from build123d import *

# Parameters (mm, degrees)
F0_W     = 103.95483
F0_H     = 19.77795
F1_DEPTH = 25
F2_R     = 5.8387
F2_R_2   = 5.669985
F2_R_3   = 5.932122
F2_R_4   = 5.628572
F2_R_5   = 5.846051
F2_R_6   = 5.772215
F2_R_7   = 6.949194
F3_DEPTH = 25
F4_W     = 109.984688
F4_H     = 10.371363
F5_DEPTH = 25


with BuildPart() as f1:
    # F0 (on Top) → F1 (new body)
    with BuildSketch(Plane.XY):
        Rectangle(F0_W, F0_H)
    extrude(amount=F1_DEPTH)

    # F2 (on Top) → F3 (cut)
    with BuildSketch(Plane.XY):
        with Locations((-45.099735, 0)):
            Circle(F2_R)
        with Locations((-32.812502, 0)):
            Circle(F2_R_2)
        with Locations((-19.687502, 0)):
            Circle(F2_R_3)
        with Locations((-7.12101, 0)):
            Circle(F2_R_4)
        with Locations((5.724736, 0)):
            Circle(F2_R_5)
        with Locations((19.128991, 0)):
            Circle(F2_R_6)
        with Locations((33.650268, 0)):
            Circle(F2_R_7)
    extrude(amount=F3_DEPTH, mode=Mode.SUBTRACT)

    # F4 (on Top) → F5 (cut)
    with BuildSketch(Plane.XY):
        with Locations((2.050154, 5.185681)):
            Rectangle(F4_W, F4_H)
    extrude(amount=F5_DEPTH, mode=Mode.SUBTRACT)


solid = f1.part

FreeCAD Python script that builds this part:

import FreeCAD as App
import Part
import Sketcher
Q = App.Units.Quantity


def add_polygon(sketch, points):
    """Adds a closed chain of lines whose ends are joined by coincident constraints."""
    first, n = sketch.GeometryCount, len(points)
    for a, b in zip(points, points[1:] + points[:1]):
        sketch.addGeometry(Part.LineSegment(App.Vector(*a, 0), App.Vector(*b, 0)), False)
    for i in range(n):
        sketch.addConstraint(Sketcher.Constraint("Coincident", first + i, 2, first + (i + 1) % n, 1))

doc = App.newDocument("Part")
body = doc.addObject("PartDesign::Body", "Body")

sketch1 = body.newObject("Sketcher::SketchObject", "Sketch")
sketch1.AttachmentSupport = (doc.getObject("XY_Plane"), [""])
sketch1.MapMode = "FlatFace"
add_polygon(sketch1, [(-52, 10), (-52, -10), (52, -10), (52, 10)])
sketch1.addConstraint(Sketcher.Constraint("Vertical", 0))
sketch1.addConstraint(Sketcher.Constraint("Horizontal", 1))
sketch1.addConstraint(Sketcher.Constraint("Vertical", 2))
sketch1.addConstraint(Sketcher.Constraint("Horizontal", 3))
sketch1.addConstraint(Sketcher.Constraint("Symmetric", 0, 2, 2, 2, -1, 1))
sketch1.addConstraint(Sketcher.Constraint("DistanceX", 1, 1, 1, 2, Q("103.95483 mm")))
sketch1.addConstraint(Sketcher.Constraint("DistanceY", 0, 2, 0, 1, Q("19.77795 mm")))
pad1 = body.newObject("PartDesign::Pad", "Pad")
pad1.Profile = sketch1
pad1.Length = 25

sketch2 = body.newObject("Sketcher::SketchObject", "Sketch001")
sketch2.AttachmentSupport = (doc.getObject("XY_Plane"), [""])
sketch2.MapMode = "FlatFace"
sketch2.addGeometry(Part.Circle(App.Vector(-45, 0, 0), App.Vector(0, 0, 1), 6), False)
sketch2.addGeometry(Part.Circle(App.Vector(-33, 0, 0), App.Vector(0, 0, 1), 6), False)
sketch2.addGeometry(Part.Circle(App.Vector(-20, 0, 0), App.Vector(0, 0, 1), 6), False)
sketch2.addGeometry(Part.Circle(App.Vector(-7, 0, 0), App.Vector(0, 0, 1), 6), False)
sketch2.addGeometry(Part.Circle(App.Vector(6, 0, 0), App.Vector(0, 0, 1), 6), False)
sketch2.addGeometry(Part.Circle(App.Vector(19, 0, 0), App.Vector(0, 0, 1), 6), False)
sketch2.addGeometry(Part.Circle(App.Vector(34, 0, 0), App.Vector(0, 0, 1), 7), False)
sketch2.addConstraint(Sketcher.Constraint("PointOnObject", 0, 3, -1))
sketch2.addConstraint(Sketcher.Constraint("PointOnObject", 1, 3, -1))
sketch2.addConstraint(Sketcher.Constraint("PointOnObject", 2, 3, -1))
sketch2.addConstraint(Sketcher.Constraint("PointOnObject", 3, 3, -1))
sketch2.addConstraint(Sketcher.Constraint("PointOnObject", 4, 3, -1))
sketch2.addConstraint(Sketcher.Constraint("PointOnObject", 5, 3, -1))
sketch2.addConstraint(Sketcher.Constraint("PointOnObject", 6, 3, -1))
sketch2.addConstraint(Sketcher.Constraint("Diameter", 0, Q("11.6774 mm")))
sketch2.addConstraint(Sketcher.Constraint("Diameter", 1, Q("11.33997 mm")))
sketch2.addConstraint(Sketcher.Constraint("Diameter", 5, Q("11.54443 mm")))
sketch2.addConstraint(Sketcher.Constraint("Diameter", 6, Q("13.898388 mm")))
sketch2.addConstraint(Sketcher.Constraint("DistanceX", 3, 3, 5, 3, Q("26.250001 mm")))
sketch2.addConstraint(Sketcher.Constraint("Diameter", 2, Q("11.864244 mm")))
sketch2.addConstraint(Sketcher.Constraint("Diameter", 3, Q("11.257144 mm")))
sketch2.addConstraint(Sketcher.Constraint("Diameter", 4, Q("11.692102 mm")))
sketch2.addConstraint(Sketcher.Constraint("DistanceX", 1, 3, 2, 3, Q("13.125 mm")))
sketch2.addConstraint(Sketcher.Constraint("DistanceX", 2, 3, -1, 1, Q("19.687502 mm")))
sketch2.addConstraint(Sketcher.Constraint("DistanceX", 3, 3, -1, 1, Q("7.12101 mm")))
sketch2.addConstraint(Sketcher.Constraint("DistanceX", 1, 3, 4, 3, Q("38.537238 mm")))
sketch2.addConstraint(Sketcher.Constraint("DistanceX", 0, 3, 4, 3, Q("50.824471 mm")))
sketch2.addConstraint(Sketcher.Constraint("DistanceX", 4, 3, 6, 3, Q("27.925532 mm")))
pocket1 = body.newObject("PartDesign::Pocket", "Pocket")
pocket1.Profile = sketch2
pocket1.Length = 25
pocket1.Reversed = True

sketch3 = body.newObject("Sketcher::SketchObject", "Sketch002")
sketch3.AttachmentSupport = (doc.getObject("XY_Plane"), [""])
sketch3.MapMode = "FlatFace"
add_polygon(sketch3, [(-53, 10), (-53, 0), (57, 0), (57, 10)])
sketch3.addConstraint(Sketcher.Constraint("Vertical", 0))
sketch3.addConstraint(Sketcher.Constraint("Horizontal", 1))
sketch3.addConstraint(Sketcher.Constraint("Vertical", 2))
sketch3.addConstraint(Sketcher.Constraint("Horizontal", 3))
sketch3.addConstraint(Sketcher.Constraint("PointOnObject", 0, 2, -1))
sketch3.addConstraint(Sketcher.Constraint("DistanceX", 1, 1, 1, 2, Q("109.984688 mm")))
sketch3.addConstraint(Sketcher.Constraint("DistanceX", -1, 1, 1, 2, Q("57.042498 mm")))
sketch3.addConstraint(Sketcher.Constraint("DistanceY", 0, 2, 0, 1, Q("10.371363 mm")))
pocket2 = body.newObject("PartDesign::Pocket", "Pocket001")
pocket2.Profile = sketch3
pocket2.Length = 25
pocket2.Reversed = True

doc.recompute()
